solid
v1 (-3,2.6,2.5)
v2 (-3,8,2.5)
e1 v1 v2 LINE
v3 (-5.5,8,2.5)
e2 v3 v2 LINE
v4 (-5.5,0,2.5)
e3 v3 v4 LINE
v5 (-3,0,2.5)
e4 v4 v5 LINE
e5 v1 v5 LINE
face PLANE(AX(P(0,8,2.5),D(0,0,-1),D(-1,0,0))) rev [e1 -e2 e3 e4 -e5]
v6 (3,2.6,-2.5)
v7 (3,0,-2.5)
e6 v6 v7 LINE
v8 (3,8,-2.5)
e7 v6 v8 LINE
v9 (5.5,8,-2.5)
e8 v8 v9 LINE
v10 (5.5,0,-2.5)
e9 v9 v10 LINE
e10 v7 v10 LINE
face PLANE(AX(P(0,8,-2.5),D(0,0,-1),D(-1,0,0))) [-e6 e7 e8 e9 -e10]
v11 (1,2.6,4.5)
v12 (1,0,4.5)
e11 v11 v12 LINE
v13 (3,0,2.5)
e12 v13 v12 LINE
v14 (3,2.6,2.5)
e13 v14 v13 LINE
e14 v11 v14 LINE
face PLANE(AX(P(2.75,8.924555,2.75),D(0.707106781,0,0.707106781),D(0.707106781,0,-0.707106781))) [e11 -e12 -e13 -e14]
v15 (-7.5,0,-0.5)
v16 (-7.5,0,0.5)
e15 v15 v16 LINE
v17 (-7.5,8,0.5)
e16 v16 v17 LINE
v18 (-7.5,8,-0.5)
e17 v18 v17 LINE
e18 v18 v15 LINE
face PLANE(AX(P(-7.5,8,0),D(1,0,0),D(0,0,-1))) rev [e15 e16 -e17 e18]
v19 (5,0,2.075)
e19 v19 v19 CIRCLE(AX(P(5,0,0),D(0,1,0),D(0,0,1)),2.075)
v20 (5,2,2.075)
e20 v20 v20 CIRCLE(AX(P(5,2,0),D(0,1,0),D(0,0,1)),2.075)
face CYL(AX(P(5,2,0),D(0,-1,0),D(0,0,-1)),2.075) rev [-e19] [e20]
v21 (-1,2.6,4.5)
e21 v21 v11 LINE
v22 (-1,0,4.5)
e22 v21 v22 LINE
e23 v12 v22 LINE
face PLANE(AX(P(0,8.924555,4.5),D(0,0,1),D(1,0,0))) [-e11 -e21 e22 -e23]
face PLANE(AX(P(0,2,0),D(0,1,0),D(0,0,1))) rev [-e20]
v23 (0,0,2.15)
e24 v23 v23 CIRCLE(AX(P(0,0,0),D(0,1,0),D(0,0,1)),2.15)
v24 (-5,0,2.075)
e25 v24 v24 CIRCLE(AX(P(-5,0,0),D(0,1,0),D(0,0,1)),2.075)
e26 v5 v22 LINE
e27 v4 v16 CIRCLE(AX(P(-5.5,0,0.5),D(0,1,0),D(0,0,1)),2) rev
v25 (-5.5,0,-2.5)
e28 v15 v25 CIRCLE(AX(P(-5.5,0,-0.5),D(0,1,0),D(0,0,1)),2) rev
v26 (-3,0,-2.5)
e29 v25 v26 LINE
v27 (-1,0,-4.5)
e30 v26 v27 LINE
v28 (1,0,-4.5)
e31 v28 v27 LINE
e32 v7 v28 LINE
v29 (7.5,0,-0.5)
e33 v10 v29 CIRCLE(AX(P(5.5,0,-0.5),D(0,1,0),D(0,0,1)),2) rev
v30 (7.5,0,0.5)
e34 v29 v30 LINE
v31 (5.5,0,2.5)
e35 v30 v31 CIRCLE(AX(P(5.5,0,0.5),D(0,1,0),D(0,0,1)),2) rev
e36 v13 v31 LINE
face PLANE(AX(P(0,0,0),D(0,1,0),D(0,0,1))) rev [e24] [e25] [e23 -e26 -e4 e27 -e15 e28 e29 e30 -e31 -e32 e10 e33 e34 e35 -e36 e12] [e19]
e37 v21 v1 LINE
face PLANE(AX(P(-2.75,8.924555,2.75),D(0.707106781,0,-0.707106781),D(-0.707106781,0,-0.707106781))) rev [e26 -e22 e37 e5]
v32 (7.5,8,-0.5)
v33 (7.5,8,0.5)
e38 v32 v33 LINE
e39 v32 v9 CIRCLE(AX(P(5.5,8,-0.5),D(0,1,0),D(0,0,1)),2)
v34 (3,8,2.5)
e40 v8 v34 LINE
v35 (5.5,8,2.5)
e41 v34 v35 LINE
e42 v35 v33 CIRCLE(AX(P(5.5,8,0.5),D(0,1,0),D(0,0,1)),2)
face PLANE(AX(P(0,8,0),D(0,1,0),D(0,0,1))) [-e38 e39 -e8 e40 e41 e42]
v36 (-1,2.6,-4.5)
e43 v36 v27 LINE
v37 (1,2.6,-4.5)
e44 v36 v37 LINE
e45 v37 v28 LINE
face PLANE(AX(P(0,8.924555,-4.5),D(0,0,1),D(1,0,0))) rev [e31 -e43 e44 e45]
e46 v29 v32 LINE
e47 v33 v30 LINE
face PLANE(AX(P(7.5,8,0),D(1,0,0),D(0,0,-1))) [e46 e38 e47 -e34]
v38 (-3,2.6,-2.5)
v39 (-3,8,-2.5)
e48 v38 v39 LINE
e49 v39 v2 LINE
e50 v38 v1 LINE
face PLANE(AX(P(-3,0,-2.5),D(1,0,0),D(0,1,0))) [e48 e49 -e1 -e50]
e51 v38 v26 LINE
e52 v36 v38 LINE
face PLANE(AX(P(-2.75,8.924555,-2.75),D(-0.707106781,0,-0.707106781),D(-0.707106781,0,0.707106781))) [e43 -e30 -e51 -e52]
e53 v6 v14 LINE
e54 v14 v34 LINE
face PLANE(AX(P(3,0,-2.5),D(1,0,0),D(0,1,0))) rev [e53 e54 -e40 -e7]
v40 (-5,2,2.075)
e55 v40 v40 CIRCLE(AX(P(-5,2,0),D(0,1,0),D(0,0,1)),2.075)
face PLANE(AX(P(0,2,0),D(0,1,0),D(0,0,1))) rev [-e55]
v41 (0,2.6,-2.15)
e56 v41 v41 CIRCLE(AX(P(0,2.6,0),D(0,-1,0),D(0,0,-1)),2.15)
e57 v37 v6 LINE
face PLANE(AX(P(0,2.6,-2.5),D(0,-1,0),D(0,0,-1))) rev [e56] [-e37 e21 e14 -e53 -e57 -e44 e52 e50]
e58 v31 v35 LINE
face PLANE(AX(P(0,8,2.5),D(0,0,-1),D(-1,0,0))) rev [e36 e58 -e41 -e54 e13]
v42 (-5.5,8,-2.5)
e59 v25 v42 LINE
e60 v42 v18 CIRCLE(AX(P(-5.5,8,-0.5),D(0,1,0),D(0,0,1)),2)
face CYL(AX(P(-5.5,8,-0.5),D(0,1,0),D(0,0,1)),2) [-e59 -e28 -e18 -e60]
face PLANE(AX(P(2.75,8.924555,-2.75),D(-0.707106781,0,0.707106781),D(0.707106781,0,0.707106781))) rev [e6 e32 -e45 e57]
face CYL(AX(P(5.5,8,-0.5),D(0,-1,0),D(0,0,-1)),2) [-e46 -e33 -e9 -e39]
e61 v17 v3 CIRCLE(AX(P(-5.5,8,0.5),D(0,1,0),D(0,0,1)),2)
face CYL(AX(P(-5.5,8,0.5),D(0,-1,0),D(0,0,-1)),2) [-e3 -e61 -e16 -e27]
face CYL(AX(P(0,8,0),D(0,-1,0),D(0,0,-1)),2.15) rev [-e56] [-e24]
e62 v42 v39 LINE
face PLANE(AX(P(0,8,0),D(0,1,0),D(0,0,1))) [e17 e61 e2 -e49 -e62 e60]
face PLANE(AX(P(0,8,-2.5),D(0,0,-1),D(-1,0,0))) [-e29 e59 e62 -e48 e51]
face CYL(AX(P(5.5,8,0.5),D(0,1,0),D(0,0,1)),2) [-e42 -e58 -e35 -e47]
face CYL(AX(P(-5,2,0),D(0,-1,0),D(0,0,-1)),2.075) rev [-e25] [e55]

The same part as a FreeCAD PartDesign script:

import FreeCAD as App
import Part
import Sketcher
from FreeCAD import Vector


def edges_at(feature, points):
    """Names of the edges that pass closest to the given points."""
    edges = feature.Shape.Edges
    near = lambda p: min(range(len(edges)), key=lambda i: edges[i].distToShape(Part.Vertex(*p))[0])
    return sorted({f"Edge{near(p) + 1}" for p in points})


def add_polygon(sketch, points):
    """Adds a closed chain of lines whose ends are joined by coincident constraints."""
    first, n = sketch.GeometryCount, len(points)
    for a, b in zip(points, points[1:] + points[:1]):
        sketch.addGeometry(Part.LineSegment(App.Vector(*a, 0), App.Vector(*b, 0)), False)
    for i in range(n):
        sketch.addConstraint(Sketcher.Constraint("Coincident", first + i, 2, first + (i + 1) % n, 1))

doc = App.newDocument("Part")
body = doc.addObject("PartDesign::Body", "Body")

# Sketch on XZ plane
sketch1 = doc.addObject("Sketcher::SketchObject", "Sketch")
body.addObject(sketch1)
sketch1.AttachmentSupport = (doc.XZ_Plane, [""])
sketch1.MapMode = "FlatFace"
add_polygon(sketch1, [(-7.5, -2.5), (-7.5, 2.5), (7.5, 2.5), (7.5, -2.5)])  # lines 0-3
sketch1.addGeometry(Part.Circle(Vector(0, 0, 0), Vector(0, 0, 1), 2.1), False)  # 4
sketch1.addConstraint(Sketcher.Constraint("Vertical", 0))
sketch1.addConstraint(Sketcher.Constraint("Horizontal", 1))
sketch1.addConstraint(Sketcher.Constraint("Vertical", 2))
sketch1.addConstraint(Sketcher.Constraint("Horizontal", 3))
sketch1.addConstraint(Sketcher.Constraint("Coincident", 4, 3, -1, 1))
sketch1.addConstraint(Sketcher.Constraint("Symmetric", 0, 2, 2, 2, -1, 1))
sketch1.addConstraint(Sketcher.Constraint("Diameter", 4, 4.3))
sketch1.addConstraint(Sketcher.Constraint("DistanceX", 1, 1, 1, 2, 15.0))
sketch1.addConstraint(Sketcher.Constraint("DistanceY", 0, 1, 0, 2, 5.0))
pad1 = doc.addObject("PartDesign::Pad", "Pad")
body.addObject(pad1)
pad1.Profile = sketch1
pad1.Length = 8
pad1.Reversed = True

# Sketch on XZ plane
sketch2 = doc.addObject("Sketcher::SketchObject", "Sketch001")
body.addObject(sketch2)
sketch2.AttachmentSupport = (doc.XZ_Plane, [""])
sketch2.MapMode = "FlatFace"
sketch2.addGeometry(Part.Circle(Vector(-5, 0, 0), Vector(0, 0, 1), 2.1), False)
sketch2.addGeometry(Part.Circle(Vector(5, 0, 0), Vector(0, 0, 1), 2.1), False)
sketch2.addConstraint(Sketcher.Constraint("Equal", 0, 1))
sketch2.addConstraint(Sketcher.Constraint("Symmetric", 0, 3, 1, 3, -1, 1))
sketch2.addConstraint(Sketcher.Constraint("PointOnObject", 0, 3, -1))
sketch2.addConstraint(Sketcher.Constraint("Diameter", 0, 4.15))
sketch2.addConstraint(Sketcher.Constraint("DistanceX", 0, 3, -1, 1, 5.0))
pocket1 = doc.addObject("PartDesign::Pocket", "Pocket")
body.addObject(pocket1)
pocket1.Profile = sketch2
pocket1.Length = 2

# Sketch on XY plane
sketch3 = doc.addObject("Sketcher::SketchObject", "Sketch002")
body.addObject(sketch3)
sketch3.AttachmentSupport = (doc.XY_Plane, [""])
sketch3.MapMode = "FlatFace"
add_polygon(sketch3, [(-3, 8), (-3, 3), (3, 3), (3, 8)])  # lines 0-3
sketch3.addConstraint(Sketcher.Constraint("Vertical", 0))
sketch3.addConstraint(Sketcher.Constraint("Horizontal", 1))
sketch3.addConstraint(Sketcher.Constraint("Vertical", 2))
sketch3.addConstraint(Sketcher.Constraint("Horizontal", 3))
sketch3.addConstraint(Sketcher.Constraint("DistanceX", 1, 1, 1, 2, 6.0))
sketch3.addConstraint(Sketcher.Constraint("DistanceY", 0, 2, 0, 1, 5.4))
sketch3.addConstraint(Sketcher.Constraint("DistanceX", 0, 2, -1, 1, 3.0))
sketch3.addConstraint(Sketcher.Constraint("DistanceY", -1, 1, 2, 2, 8.0))
pocket2 = doc.addObject("PartDesign::Pocket", "Pocket001")
body.addObject(pocket2)
pocket2.Profile = sketch3
pocket2.Type = "ThroughAll"
pocket2.Midplane = True

# Sketch on XZ plane
sketch4 = doc.addObject("Sketcher::SketchObject", "Sketch003")
body.addObject(sketch4)
sketch4.AttachmentSupport = (doc.XZ_Plane, [""])
sketch4.MapMode = "FlatFace"
add_polygon(sketch4, [(-1, -4.5), (-3, -2.5), (3, -2.5), (1, -4.5)])  # lines 0-3
add_polygon(sketch4, [(3, 2.5), (-3, 2.5), (-1, 4.5), (1, 4.5)])  # lines 4-7
sketch4.addConstraint(Sketcher.Constraint("Horizontal", 1))
sketch4.addConstraint(Sketcher.Constraint("Horizontal", 3))
sketch4.addConstraint(Sketcher.Constraint("Horizontal", 4))
sketch4.addConstraint(Sketcher.Constraint("Horizontal", 6))
sketch4.addConstraint(Sketcher.Constraint("Symmetric", 1, 2, 4, 2, -1, 1))
sketch4.addConstraint(Sketcher.Constraint("Symmetric", 2, 2, 5, 2, -1, 1))
sketch4.addConstraint(Sketcher.Constraint("Perpendicular", 0, 2))
sketch4.addConstraint(Sketcher.Constraint("Perpendicular", 5, 7))
sketch4.addConstraint(Sketcher.Constraint("Vertical", 0, 2, 4, 2))
sketch4.addConstraint(Sketcher.Constraint("Vertical", 3, 2, 5, 2))
sketch4.addConstraint(Sketcher.Constraint("Vertical", 2, 2, 6, 2))
sketch4.addConstraint(Sketcher.Constraint("DistanceX", 1, 1, 1, 2, 6.0))
sketch4.addConstraint(Sketcher.Constraint("DistanceX", 3, 2, 3, 1, 2.0))
sketch4.addConstraint(Sketcher.Constraint("DistanceY", 0, 2, 4, 2, 5.0))
pad2 = doc.addObject("PartDesign::Pad", "Pad001")
body.addObject(pad2)
pad2.Profile = sketch4
pad2.Length = 2.6
pad2.Reversed = True
doc.recompute()

fillet = doc.addObject("PartDesign::Fillet", "Fillet")
body.addObject(fillet)
fillet.Base = (pad2, edges_at(pad2, [
    (7.5, 4, 2.5),
    (-7.5, 4, 2.5),
    (-7.5, 4, -2.5),
    (7.5, 4, -2.5),
]))
fillet.Radius = 2

doc.recompute()
